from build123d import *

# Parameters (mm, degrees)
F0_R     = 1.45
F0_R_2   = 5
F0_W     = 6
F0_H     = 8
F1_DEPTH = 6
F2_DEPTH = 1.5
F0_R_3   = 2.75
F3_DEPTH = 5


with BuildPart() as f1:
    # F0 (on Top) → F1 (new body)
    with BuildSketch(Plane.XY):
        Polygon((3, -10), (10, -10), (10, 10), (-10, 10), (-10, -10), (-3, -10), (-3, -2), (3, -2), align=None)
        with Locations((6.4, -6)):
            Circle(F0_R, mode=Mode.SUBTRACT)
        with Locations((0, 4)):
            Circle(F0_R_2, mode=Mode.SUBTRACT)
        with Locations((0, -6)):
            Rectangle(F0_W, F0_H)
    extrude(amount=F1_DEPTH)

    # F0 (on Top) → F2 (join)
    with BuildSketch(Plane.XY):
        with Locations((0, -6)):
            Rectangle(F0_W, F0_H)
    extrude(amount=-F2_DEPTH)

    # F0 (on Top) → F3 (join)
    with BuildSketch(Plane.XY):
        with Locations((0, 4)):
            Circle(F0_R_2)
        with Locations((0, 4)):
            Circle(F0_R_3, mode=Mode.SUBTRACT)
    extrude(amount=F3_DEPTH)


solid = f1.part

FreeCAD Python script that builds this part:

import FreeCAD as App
import Part
import Sketcher
Q = App.Units.Quantity

doc = App.newDocument("Part")
body = doc.addObject("PartDesign::Body", "Body")

# Sketch on XY plane
sketch1 = body.newObject("Sketcher::SketchObject", "Sketch")
sketch1.AttachmentSupport = (doc.getObject("XY_Plane"), [""])
sketch1.MapMode = "FlatFace"
sketch1.addGeometry([
    Part.LineSegment(App.Vector(10, -10, 0), App.Vector(10, 10, 0)),  # 0
    Part.LineSegment(App.Vector(10, 10, 0), App.Vector(-10, 10, 0)),  # 1
    Part.LineSegment(App.Vector(-10, 10, 0), App.Vector(-10, -10, 0)),  # 2
    Part.LineSegment(App.Vector(-10, -10, 0), App.Vector(10, -10, 0)),  # 3
    Part.Circle(App.Vector(6.4, -6, 0), App.Vector(0, 0, 1), 1.45),  # 4
    Part.Circle(App.Vector(0, 4, 0), App.Vector(0, 0, 1), 5),  # 5
], False)
sketch1.addConstraint([
    Sketcher.Constraint("Coincident", 0, 2, 1, 1),
    Sketcher.Constraint("Coincident", 1, 2, 2, 1),
    Sketcher.Constraint("Coincident", 2, 2, 3, 1),
    Sketcher.Constraint("Coincident", 3, 2, 0, 1),
    Sketcher.Constraint("Vertical", 0),
    Sketcher.Constraint("Horizontal", 1),
    Sketcher.Constraint("Vertical", 2),
    Sketcher.Constraint("Horizontal", 3),
    Sketcher.Constraint("Symmetric", 0, 2, 2, 2, -1, 1),
    Sketcher.Constraint("PointOnObject", 5, 3, -2),
    Sketcher.Constraint("Equal", 3, 0),
    Sketcher.Constraint("Diameter", 5, Q("10 mm")),
    Sketcher.Constraint("Diameter", 4, Q("2.9 mm")),
    Sketcher.Constraint("DistanceX", 1, 2, 1, 1, Q("20 mm")),
    Sketcher.Constraint("DistanceY", 4, 3, -1, 1, Q("6 mm")),
    Sketcher.Constraint("DistanceY", -1, 1, 5, 3, Q("4 mm")),
    Sketcher.Constraint("DistanceX", -1, 1, 4, 3, Q("6.4 mm")),
])
pad1 = body.newObject("PartDesign::Pad", "Pad")
pad1.Profile = sketch1
pad1.Length = 6

# Sketch on XY plane
sketch2 = body.newObject("Sketcher::SketchObject", "Sketch001")
sketch2.AttachmentSupport = (doc.getObject("XY_Plane"), [""])
sketch2.MapMode = "FlatFace"
sketch2.addGeometry([
    Part.LineSegment(App.Vector(-3, -2, 0), App.Vector(-3, -10, 0)),
    Part.LineSegment(App.Vector(-3, -10, 0), App.Vector(3, -10, 0)),
    Part.LineSegment(App.Vector(3, -10, 0), App.Vector(3, -2, 0)),
    Part.LineSegment(App.Vector(3, -2, 0), App.Vector(-3, -2, 0)),
], False)
sketch2.addConstraint([
    Sketcher.Constraint("Coincident", 0, 2, 1, 1),
    Sketcher.Constraint("Coincident", 1, 2, 2, 1),
    Sketcher.Constraint("Coincident", 2, 2, 3, 1),
    Sketcher.Constraint("Coincident", 3, 2, 0, 1),
    Sketcher.Constraint("Vertical", 0),
    Sketcher.Constraint("Horizontal", 1),
    Sketcher.Constraint("Vertical", 2),
    Sketcher.Constraint("Horizontal", 3),
    Sketcher.Constraint("DistanceX", 1, 1, 1, 2, Q("6 mm")),
    Sketcher.Constraint("DistanceY", 0, 2, 0, 1, Q("8 mm")),
    Sketcher.Constraint("DistanceX", 0, 2, -1, 1, Q("3 mm")),
    Sketcher.Constraint("DistanceY", 0, 2, -1, 1, Q("10 mm")),
])
pad2 = body.newObject("PartDesign::Pad", "Pad001")
pad2.Profile = sketch2
pad2.Length = 1.5
pad2.Reversed = True

# Sketch on XY plane
sketch3 = body.newObject("Sketcher::SketchObject", "Sketch002")
sketch3.AttachmentSupport = (doc.getObject("XY_Plane"), [""])
sketch3.MapMode = "FlatFace"
sketch3.addGeometry([
    Part.Circle(App.Vector(0, 4, 0), App.Vector(0, 0, 1), 5),
    Part.Circle(App.Vector(0, 4, 0), App.Vector(0, 0, 1), 2.75),
], False)
sketch3.addConstraint([
    Sketcher.Constraint("Coincident", 1, 3, 0, 3),
    Sketcher.Constraint("PointOnObject", 0, 3, -2),
    Sketcher.Constraint("Diameter", 0, Q("10 mm")),
    Sketcher.Constraint("Diameter", 1, Q("5.5 mm")),
    Sketcher.Constraint("DistanceY", -1, 1, 0, 3, Q("4 mm")),
])
pad3 = body.newObject("PartDesign::Pad", "Pad002")
pad3.Profile = sketch3
pad3.Length = 5

doc.recompute()
